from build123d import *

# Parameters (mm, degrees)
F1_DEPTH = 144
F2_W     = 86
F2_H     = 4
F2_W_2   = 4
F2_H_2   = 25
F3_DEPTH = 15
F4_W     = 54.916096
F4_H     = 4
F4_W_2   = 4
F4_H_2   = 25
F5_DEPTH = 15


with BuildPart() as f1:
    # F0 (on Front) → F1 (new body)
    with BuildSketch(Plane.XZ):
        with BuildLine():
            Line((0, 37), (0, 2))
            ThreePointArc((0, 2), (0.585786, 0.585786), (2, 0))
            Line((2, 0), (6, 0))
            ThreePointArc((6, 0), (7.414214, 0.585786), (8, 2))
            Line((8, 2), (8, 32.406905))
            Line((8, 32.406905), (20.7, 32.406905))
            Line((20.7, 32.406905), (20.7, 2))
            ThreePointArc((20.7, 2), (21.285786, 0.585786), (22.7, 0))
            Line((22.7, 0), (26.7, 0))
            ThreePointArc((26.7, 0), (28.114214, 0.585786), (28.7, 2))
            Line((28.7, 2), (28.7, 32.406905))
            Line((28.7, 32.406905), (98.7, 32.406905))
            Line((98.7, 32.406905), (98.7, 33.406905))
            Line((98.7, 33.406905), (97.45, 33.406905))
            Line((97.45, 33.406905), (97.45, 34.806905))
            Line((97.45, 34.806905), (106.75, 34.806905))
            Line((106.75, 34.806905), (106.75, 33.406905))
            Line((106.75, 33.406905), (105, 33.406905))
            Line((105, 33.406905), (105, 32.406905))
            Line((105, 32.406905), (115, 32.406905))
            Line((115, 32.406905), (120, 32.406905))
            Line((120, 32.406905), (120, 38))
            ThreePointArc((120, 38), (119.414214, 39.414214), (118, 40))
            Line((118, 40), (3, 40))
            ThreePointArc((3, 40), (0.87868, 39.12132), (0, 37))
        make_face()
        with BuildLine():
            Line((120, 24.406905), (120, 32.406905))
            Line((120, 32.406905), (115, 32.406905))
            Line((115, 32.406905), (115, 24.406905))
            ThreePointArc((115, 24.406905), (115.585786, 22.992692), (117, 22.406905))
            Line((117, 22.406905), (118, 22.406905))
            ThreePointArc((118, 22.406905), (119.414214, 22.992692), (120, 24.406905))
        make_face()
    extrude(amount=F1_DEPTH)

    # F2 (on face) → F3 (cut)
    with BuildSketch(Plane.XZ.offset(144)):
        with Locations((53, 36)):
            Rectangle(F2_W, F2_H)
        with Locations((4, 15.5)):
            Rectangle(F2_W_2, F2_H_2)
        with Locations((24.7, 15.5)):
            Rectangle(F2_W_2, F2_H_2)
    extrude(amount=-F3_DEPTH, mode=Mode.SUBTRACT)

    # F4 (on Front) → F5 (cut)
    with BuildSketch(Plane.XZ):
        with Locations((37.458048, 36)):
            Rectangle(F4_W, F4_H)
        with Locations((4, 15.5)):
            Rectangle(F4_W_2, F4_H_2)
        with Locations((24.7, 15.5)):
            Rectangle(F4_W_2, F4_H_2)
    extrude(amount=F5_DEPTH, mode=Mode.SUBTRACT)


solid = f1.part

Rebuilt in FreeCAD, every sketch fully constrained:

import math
import FreeCAD as App
import Part
import Sketcher

V = App.Vector

doc = App.newDocument("Part")
body = doc.addObject("PartDesign::Body", "Body")

# Sketch on XZ plane
sketch1 = body.newObject("Sketcher::SketchObject", "Sketch")
sketch1.AttachmentSupport = (doc.getObject("XZ_Plane"), [""])
sketch1.MapMode = "FlatFace"
sketch1.addGeometry(Part.LineSegment(V(0, 37, 0), V(0, 2, 0)), False)
sketch1.addGeometry(Part.ArcOfCircle(Part.Circle(V(1.999999, 1.999999, 0), V(0, 0, 1), 1.999999), math.radians(179.999957), math.radians(270.000043)), False)
sketch1.addGeometry(Part.LineSegment(V(2, 0, 0), V(6, 0, 0)), False)
sketch1.addGeometry(Part.ArcOfCircle(Part.Circle(V(6.000001, 1.999999, 0), V(0, 0, 1), 1.999999), math.radians(-90.000043), math.radians(0.000043)), False)
sketch1.addGeometry(Part.LineSegment(V(8, 2, 0), V(8, 32.406905, 0)), False)
sketch1.addGeometry(Part.LineSegment(V(8, 32.406905, 0), V(20.7, 32.406905, 0)), False)
sketch1.addGeometry(Part.LineSegment(V(20.7, 32.406905, 0), V(20.7, 2, 0)), False)
sketch1.addGeometry(Part.ArcOfCircle(Part.Circle(V(22.699999, 1.999999, 0), V(0, 0, 1), 1.999999), math.radians(179.999957), math.radians(270.000043)), False)
sketch1.addGeometry(Part.LineSegment(V(22.7, 0, 0), V(26.7, 0, 0)), False)
sketch1.addGeometry(Part.ArcOfCircle(Part.Circle(V(26.700001, 1.999999, 0), V(0, 0, 1), 1.999999), math.radians(-90.000043), math.radians(0.000043)), False)
sketch1.addGeometry(Part.LineSegment(V(28.7, 2, 0), V(28.7, 32.406905, 0)), False)
sketch1.addGeometry(Part.LineSegment(V(28.7, 32.406905, 0), V(98.7, 32.406905, 0)), False)
sketch1.addGeometry(Part.LineSegment(V(98.7, 32.406905, 0), V(98.7, 33.406905, 0)), False)
sketch1.addGeometry(Part.LineSegment(V(98.7, 33.406905, 0), V(97.45, 33.406905, 0)), False)
sketch1.addGeometry(Part.LineSegment(V(97.45, 33.406905, 0), V(97.45, 34.806905, 0)), False)
sketch1.addGeometry(Part.LineSegment(V(97.45, 34.806905, 0), V(106.75, 34.806905, 0)), False)
sketch1.addGeometry(Part.LineSegment(V(106.75, 34.806905, 0), V(106.75, 33.406905, 0)), False)
sketch1.addGeometry(Part.LineSegment(V(106.75, 33.406905, 0), V(105, 33.406905, 0)), False)
sketch1.addGeometry(Part.LineSegment(V(105, 33.406905, 0), V(105, 32.406905, 0)), False)
sketch1.addGeometry(Part.LineSegment(V(105, 32.406905, 0), V(115, 32.406905, 0)), False)
sketch1.addGeometry(Part.LineSegment(V(115, 32.406905, 0), V(115, 24.406905, 0)), False)
sketch1.addGeometry(Part.ArcOfCircle(Part.Circle(V(117, 24.406905, 0), V(0, 0, 1), 2), math.radians(-179.999994), math.radians(-90.000006)), False)
sketch1.addGeometry(Part.LineSegment(V(117, 22.406905, 0), V(118, 22.406905, 0)), False)
sketch1.addGeometry(Part.ArcOfCircle(Part.Circle(V(118, 24.406905, 0), V(0, 0, 1), 2), math.radians(-89.999994), math.radians(-0.000006)), False)
sketch1.addGeometry(Part.LineSegment(V(120, 24.406905, 0), V(120, 38, 0)), False)
sketch1.addGeometry(Part.ArcOfCircle(Part.Circle(V(118.000001, 38.000001, 0), V(0, 0, 1), 1.999999), math.radians(-0.000043), math.radians(90.000043)), False)
sketch1.addGeometry(Part.LineSegment(V(118, 40, 0), V(3, 40, 0)), False)
sketch1.addGeometry(Part.ArcOfCircle(Part.Circle(V(3.000001, 36.999999, 0), V(0, 0, 1), 3.000001), math.radians(90.000022), math.radians(179.999978)), False)
sketch1.addConstraint(Sketcher.Constraint("Tangent", 0, 2, 1, 1))
sketch1.addConstraint(Sketcher.Constraint("Tangent", 1, 2, 2, 1))
sketch1.addConstraint(Sketcher.Constraint("Tangent", 2, 2, 3, 1))
sketch1.addConstraint(Sketcher.Constraint("Tangent", 3, 2, 4, 1))
sketch1.addConstraint(Sketcher.Constraint("Coincident", 4, 2, 5, 1))
sketch1.addConstraint(Sketcher.Constraint("Coincident", 5, 2, 6, 1))
sketch1.addConstraint(Sketcher.Constraint("Tangent", 6, 2, 7, 1))
sketch1.addConstraint(Sketcher.Constraint("Tangent", 7, 2, 8, 1))
sketch1.addConstraint(Sketcher.Constraint("Tangent", 8, 2, 9, 1))
sketch1.addConstraint(Sketcher.Constraint("Tangent", 9, 2, 10, 1))
sketch1.addConstraint(Sketcher.Constraint("Coincident", 10, 2, 11, 1))
sketch1.addConstraint(Sketcher.Constraint("Coincident", 11, 2, 12, 1))
sketch1.addConstraint(Sketcher.Constraint("Coincident", 12, 2, 13, 1))
sketch1.addConstraint(Sketcher.Constraint("Coincident", 13, 2, 14, 1))
sketch1.addConstraint(Sketcher.Constraint("Coincident", 14, 2, 15, 1))
sketch1.addConstraint(Sketcher.Constraint("Coincident", 15, 2, 16, 1))
sketch1.addConstraint(Sketcher.Constraint("Coincident", 16, 2, 17, 1))
sketch1.addConstraint(Sketcher.Constraint("Coincident", 17, 2, 18, 1))
sketch1.addConstraint(Sketcher.Constraint("Coincident", 18, 2, 19, 1))
sketch1.addConstraint(Sketcher.Constraint("Coincident", 19, 2, 20, 1))
sketch1.addConstraint(Sketcher.Constraint("Tangent", 20, 2, 21, 1))
sketch1.addConstraint(Sketcher.Constraint("Tangent", 21, 2, 22, 1))
sketch1.addConstraint(Sketcher.Constraint("Tangent", 22, 2, 23, 1))
sketch1.addConstraint(Sketcher.Constraint("Tangent", 23, 2, 24, 1))
sketch1.addConstraint(Sketcher.Constraint("Tangent", 24, 2, 25, 1))
sketch1.addConstraint(Sketcher.Constraint("Tangent", 25, 2, 26, 1))
sketch1.addConstraint(Sketcher.Constraint("Tangent", 26, 2, 27, 1))
sketch1.addConstraint(Sketcher.Constraint("Tangent", 27, 2, 0, 1))
sketch1.addConstraint(Sketcher.Constraint("Vertical", 0))
sketch1.addConstraint(Sketcher.Constraint("Horizontal", 2))
sketch1.addConstraint(Sketcher.Constraint("Vertical", 4))
sketch1.addConstraint(Sketcher.Constraint("Horizontal", 5))
sketch1.addConstraint(Sketcher.Constraint("Vertical", 6))
sketch1.addConstraint(Sketcher.Constraint("Horizontal", 8))
sketch1.addConstraint(Sketcher.Constraint("Vertical", 10))
sketch1.addConstraint(Sketcher.Constraint("Horizontal", 11))
sketch1.addConstraint(Sketcher.Constraint("Vertical", 12))
sketch1.addConstraint(Sketcher.Constraint("Horizontal", 13))
sketch1.addConstraint(Sketcher.Constraint("Vertical", 14))
sketch1.addConstraint(Sketcher.Constraint("Horizontal", 15))
sketch1.addConstraint(Sketcher.Constraint("Vertical", 16))
sketch1.addConstraint(Sketcher.Constraint("Horizontal", 17))
sketch1.addConstraint(Sketcher.Constraint("Vertical", 18))
sketch1.addConstraint(Sketcher.Constraint("Horizontal", 19))
sketch1.addConstraint(Sketcher.Constraint("Vertical", 20))
sketch1.addConstraint(Sketcher.Constraint("Horizontal", 22))
sketch1.addConstraint(Sketcher.Constraint("Vertical", 24))
sketch1.addConstraint(Sketcher.Constraint("Horizontal", 26))
sketch1.addConstraint(Sketcher.Constraint("Equal", 1, 3))
sketch1.addConstraint(Sketcher.Constraint("Equal", 3, 7))
sketch1.addConstraint(Sketcher.Constraint("Equal", 7, 9))
sketch1.addConstraint(Sketcher.Constraint("Equal", 9, 21))
sketch1.addConstraint(Sketcher.Constraint("Equal", 21, 23))
sketch1.addConstraint(Sketcher.Constraint("Equal", 23, 25))
sketch1.addConstraint(Sketcher.Constraint("PointOnObject", 0, 2, -2))
sketch1.addConstraint(Sketcher.Constraint("PointOnObject", 1, 2, -1))
sketch1.addConstraint(Sketcher.Constraint("PointOnObject", 7, 2, -1))
sketch1.addConstraint(Sketcher.Constraint("Horizontal", 5, 2, 10, 2))
sketch1.addConstraint(Sketcher.Constraint("Horizontal", 13, 2, 16, 2))
sketch1.addConstraint(Sketcher.Constraint("Horizontal", 11, 2, 18, 2))
sketch1.addConstraint(Sketcher.Constraint("Equal", 2, 8))
sketch1.addConstraint(Sketcher.Constraint("Equal", 22, 12))
sketch1.addConstraint(Sketcher.Constraint("Radius", 1, 1.999999))
sketch1.addConstraint(Sketcher.Constraint("Radius", 27, 3.000001))
sketch1.addConstraint(Sketcher.Constraint("DistanceX", 2, 1, 2, 2, 4.0))
sketch1.addConstraint(Sketcher.Constraint("DistanceX", 11, 1, 11, 2, 70.0))
sketch1.addConstraint(Sketcher.Constraint("DistanceX", 19, 1, 19, 2, 10.0))
sketch1.addConstraint(Sketcher.Constraint("DistanceX", 22, 1, 22, 2, 1.0))
sketch1.addConstraint(Sketcher.Constraint("DistanceX", 26, 2, 26, 1, 115.0))
sketch1.addConstraint(Sketcher.Constraint("DistanceY", 0, 2, 0, 1, 35.0))
sketch1.addConstraint(Sketcher.Constraint("DistanceY", 20, 2, 20, 1, 8.0))
sketch1.addConstraint(Sketcher.Constraint("DistanceX", 5, 1, 5, 2, 12.7))
sketch1.addConstraint(Sketcher.Constraint("DistanceX", 15, 1, 15, 2, 9.3))
sketch1.addConstraint(Sketcher.Constraint("DistanceY", 14, 1, 14, 2, 1.4))
sketch1.addConstraint(Sketcher.Constraint("DistanceX", 13, 2, 13, 1, 1.25))
sketch1.addConstraint(Sketcher.Constraint("DistanceY", 4, 1, 4, 2, 30.406905))
pad1 = body.newObject("PartDesign::Pad", "Pad")
pad1.Profile = sketch1
pad1.Length = 144

# Sketch on XZ plane
sketch2 = body.newObject("Sketcher::SketchObject", "Sketch001")
sketch2.AttachmentSupport = (doc.getObject("XZ_Plane"), [""])
sketch2.MapMode = "FlatFace"
sketch2.AttachmentOffset = App.Placement(V(0, 0, 144), App.Rotation())
sketch2.addGeometry(Part.LineSegment(V(10, 38, 0), V(10, 34, 0)), False)
sketch2.addGeometry(Part.LineSegment(V(10, 34, 0), V(96, 34, 0)), False)
sketch2.addGeometry(Part.LineSegment(V(96, 34, 0), V(96, 38, 0)), False)
sketch2.addGeometry(Part.LineSegment(V(96, 38, 0), V(10, 38, 0)), False)
sketch2.addGeometry(Part.LineSegment(V(2, 28, 0), V(2, 3, 0)), False)
sketch2.addGeometry(Part.LineSegment(V(2, 3, 0), V(6, 3, 0)), False)
sketch2.addGeometry(Part.LineSegment(V(6, 3, 0), V(6, 28, 0)), False)
sketch2.addGeometry(Part.LineSegment(V(6, 28, 0), V(2, 28, 0)), False)
sketch2.addGeometry(Part.LineSegment(V(22.7, 28, 0), V(22.7, 3, 0)), False)
sketch2.addGeometry(Part.LineSegment(V(22.7, 3, 0), V(26.7, 3, 0)), False)
sketch2.addGeometry(Part.LineSegment(V(26.7, 3, 0), V(26.7, 28, 0)), False)
sketch2.addGeometry(Part.LineSegment(V(26.7, 28, 0), V(22.7, 28, 0)), False)
sketch2.addConstraint(Sketcher.Constraint("Coincident", 0, 2, 1, 1))
sketch2.addConstraint(Sketcher.Constraint("Coincident", 1, 2, 2, 1))
sketch2.addConstraint(Sketcher.Constraint("Coincident", 2, 2, 3, 1))
sketch2.addConstraint(Sketcher.Constraint("Coincident", 3, 2, 0, 1))
sketch2.addConstraint(Sketcher.Constraint("Coincident", 4, 2, 5, 1))
sketch2.addConstraint(Sketcher.Constraint("Coincident", 5, 2, 6, 1))
sketch2.addConstraint(Sketcher.Constraint("Coincident", 6, 2, 7, 1))
sketch2.addConstraint(Sketcher.Constraint("Coincident", 7, 2, 4, 1))
sketch2.addConstraint(Sketcher.Constraint("Coincident", 8, 2, 9, 1))
sketch2.addConstraint(Sketcher.Constraint("Coincident", 9, 2, 10, 1))
sketch2.addConstraint(Sketcher.Constraint("Coincident", 10, 2, 11, 1))
sketch2.addConstraint(Sketcher.Constraint("Coincident", 11, 2, 8, 1))
sketch2.addConstraint(Sketcher.Constraint("Vertical", 0))
sketch2.addConstraint(Sketcher.Constraint("Horizontal", 1))
sketch2.addConstraint(Sketcher.Constraint("Vertical", 2))
sketch2.addConstraint(Sketcher.Constraint("Horizontal", 3))
sketch2.addConstraint(Sketcher.Constraint("Vertical", 4))
sketch2.addConstraint(Sketcher.Constraint("Horizontal", 5))
sketch2.addConstraint(Sketcher.Constraint("Vertical", 6))
sketch2.addConstraint(Sketcher.Constraint("Horizontal", 7))
sketch2.addConstraint(Sketcher.Constraint("Vertical", 8))
sketch2.addConstraint(Sketcher.Constraint("Horizontal", 9))
sketch2.addConstraint(Sketcher.Constraint("Vertical", 10))
sketch2.addConstraint(Sketcher.Constraint("Horizontal", 11))
sketch2.addConstraint(Sketcher.Constraint("Horizontal", 5, 2, 8, 2))
sketch2.addConstraint(Sketcher.Constraint("Horizontal", 7, 2, 10, 2))
sketch2.addConstraint(Sketcher.Constraint("Equal", 7, 9))
sketch2.addConstraint(Sketcher.Constraint("Equal", 11, 0))
sketch2.addConstraint(Sketcher.Constraint("DistanceX", 1, 1, 1, 2, 86.0))
sketch2.addConstraint(Sketcher.Constraint("DistanceX", 5, 1, 5, 2, 4.0))
sketch2.addConstraint(Sketcher.Constraint("DistanceY", 4, 2, 4, 1, 25.0))
sketch2.addConstraint(Sketcher.Constraint("DistanceX", -1, 1, 0, 2, 10.0))
sketch2.addConstraint(Sketcher.Constraint("DistanceY", -1, 1, 0, 2, 34.0))
sketch2.addConstraint(Sketcher.Constraint("DistanceX", -1, 1, 4, 2, 2.0))
sketch2.addConstraint(Sketcher.Constraint("DistanceY", -1, 1, 4, 2, 3.0))
sketch2.addConstraint(Sketcher.Constraint("DistanceX", -1, 1, 8, 2, 22.7))
pocket1 = body.newObject("PartDesign::Pocket", "Pocket")
pocket1.Profile = sketch2
pocket1.Length = 15

# Sketch on XZ plane
sketch3 = body.newObject("Sketcher::SketchObject", "Sketch002")
sketch3.AttachmentSupport = (doc.getObject("XZ_Plane"), [""])
sketch3.MapMode = "FlatFace"
sketch3.addGeometry(Part.LineSegment(V(10, 38, 0), V(10, 34, 0)), False)
sketch3.addGeometry(Part.LineSegment(V(10, 34, 0), V(64.916096, 34, 0)), False)
sketch3.addGeometry(Part.LineSegment(V(64.916096, 34, 0), V(64.916096, 38, 0)), False)
sketch3.addGeometry(Part.LineSegment(V(64.916096, 38, 0), V(10, 38, 0)), False)
sketch3.addGeometry(Part.LineSegment(V(2, 28, 0), V(2, 3, 0)), False)
sketch3.addGeometry(Part.LineSegment(V(2, 3, 0), V(6, 3, 0)), False)
sketch3.addGeometry(Part.LineSegment(V(6, 3, 0), V(6, 28, 0)), False)
sketch3.addGeometry(Part.LineSegment(V(6, 28, 0), V(2, 28, 0)), False)
sketch3.addGeometry(Part.LineSegment(V(22.7, 28, 0), V(22.7, 3, 0)), False)
sketch3.addGeometry(Part.LineSegment(V(22.7, 3, 0), V(26.7, 3, 0)), False)
sketch3.addGeometry(Part.LineSegment(V(26.7, 3, 0), V(26.7, 28, 0)), False)
sketch3.addGeometry(Part.LineSegment(V(26.7, 28, 0), V(22.7, 28, 0)), False)
sketch3.addConstraint(Sketcher.Constraint("Coincident", 0, 2, 1, 1))
sketch3.addConstraint(Sketcher.Constraint("Coincident", 1, 2, 2, 1))
sketch3.addConstraint(Sketcher.Constraint("Coincident", 2, 2, 3, 1))
sketch3.addConstraint(Sketcher.Constraint("Coincident", 3, 2, 0, 1))
sketch3.addConstraint(Sketcher.Constraint("Coincident", 4, 2, 5, 1))
sketch3.addConstraint(Sketcher.Constraint("Coincident", 5, 2, 6, 1))
sketch3.addConstraint(Sketcher.Constraint("Coincident", 6, 2, 7, 1))
sketch3.addConstraint(Sketcher.Constraint("Coincident", 7, 2, 4, 1))
sketch3.addConstraint(Sketcher.Constraint("Coincident", 8, 2, 9, 1))
sketch3.addConstraint(Sketcher.Constraint("Coincident", 9, 2, 10, 1))
sketch3.addConstraint(Sketcher.Constraint("Coincident", 10, 2, 11, 1))
sketch3.addConstraint(Sketcher.Constraint("Coincident", 11, 2, 8, 1))
sketch3.addConstraint(Sketcher.Constraint("Vertical", 0))
sketch3.addConstraint(Sketcher.Constraint("Horizontal", 1))
sketch3.addConstraint(Sketcher.Constraint("Vertical", 2))
sketch3.addConstraint(Sketcher.Constraint("Horizontal", 3))
sketch3.addConstraint(Sketcher.Constraint("Vertical", 4))
sketch3.addConstraint(Sketcher.Constraint("Horizontal", 5))
sketch3.addConstraint(Sketcher.Constraint("Vertical", 6))
sketch3.addConstraint(Sketcher.Constraint("Horizontal", 7))
sketch3.addConstraint(Sketcher.Constraint("Vertical", 8))
sketch3.addConstraint(Sketcher.Constraint("Horizontal", 9))
sketch3.addConstraint(Sketcher.Constraint("Vertical", 10))
sketch3.addConstraint(Sketcher.Constraint("Horizontal", 11))
sketch3.addConstraint(Sketcher.Constraint("Horizontal", 5, 2, 8, 2))
sketch3.addConstraint(Sketcher.Constraint("Horizontal", 7, 2, 10, 2))
sketch3.addConstraint(Sketcher.Constraint("Equal", 7, 9))
sketch3.addConstraint(Sketcher.Constraint("Equal", 11, 0))
sketch3.addConstraint(Sketcher.Constraint("DistanceX", 5, 1, 5, 2, 4.0))
sketch3.addConstraint(Sketcher.Constraint("DistanceY", 4, 2, 4, 1, 25.0))
sketch3.addConstraint(Sketcher.Constraint("DistanceX", -1, 1, 0, 2, 10.0))
sketch3.addConstraint(Sketcher.Constraint("DistanceY", -1, 1, 0, 2, 34.0))
sketch3.addConstraint(Sketcher.Constraint("DistanceX", -1, 1, 4, 2, 2.0))
sketch3.addConstraint(Sketcher.Constraint("DistanceY", -1, 1, 4, 2, 3.0))
sketch3.addConstraint(Sketcher.Constraint("DistanceX", -1, 1, 8, 2, 22.7))
sketch3.addConstraint(Sketcher.Constraint("DistanceX", 1, 1, 1, 2, 54.916096))
pocket2 = body.newObject("PartDesign::Pocket", "Pocket001")
pocket2.Profile = sketch3
pocket2.Length = 15
pocket2.Reversed = True

doc.recompute()
